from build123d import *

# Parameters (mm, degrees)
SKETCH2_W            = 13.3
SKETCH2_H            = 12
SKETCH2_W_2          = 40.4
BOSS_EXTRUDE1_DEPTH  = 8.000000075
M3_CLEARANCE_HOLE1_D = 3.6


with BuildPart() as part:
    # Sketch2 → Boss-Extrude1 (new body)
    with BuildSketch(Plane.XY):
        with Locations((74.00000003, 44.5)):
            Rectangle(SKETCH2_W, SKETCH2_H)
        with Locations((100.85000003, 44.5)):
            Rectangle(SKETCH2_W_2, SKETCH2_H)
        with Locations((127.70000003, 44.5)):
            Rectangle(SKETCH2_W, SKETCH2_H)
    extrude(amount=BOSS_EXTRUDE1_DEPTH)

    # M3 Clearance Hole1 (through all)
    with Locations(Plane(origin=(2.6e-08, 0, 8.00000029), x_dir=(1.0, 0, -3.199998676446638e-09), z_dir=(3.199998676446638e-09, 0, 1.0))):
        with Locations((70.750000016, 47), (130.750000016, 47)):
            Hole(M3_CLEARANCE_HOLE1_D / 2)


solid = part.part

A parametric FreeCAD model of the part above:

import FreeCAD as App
import Part
import Sketcher
Q = App.Units.Quantity

doc = App.newDocument("Part")
params = doc.addObject("Spreadsheet::Sheet", "Params")
for row, (alias, value) in enumerate([
    ("sketch1_width", "67 mm"),
    ("sketch1_height", "12 mm"),
    ("pad1_length", "8 mm"),
    ("sketch2_diameter", "3.6 mm"),
    ("hole_diameter", "3.6 mm"),
], start=1):
    params.set(f"A{row}", alias)
    params.set(f"B{row}", "=" + value)
    params.setAlias(f"B{row}", alias)

body = doc.addObject("PartDesign::Body", "Body")

sketch1 = body.newObject("Sketcher::SketchObject", "Sketch")
sketch1.AttachmentSupport = (doc.getObject("XY_Plane"), [""])
sketch1.MapMode = "FlatFace"
sketch1.addGeometry(Part.LineSegment(App.Vector(67, 50, 0), App.Vector(67, 38, 0)), False)
sketch1.addGeometry(Part.LineSegment(App.Vector(67, 38, 0), App.Vector(134, 38, 0)), False)
sketch1.addGeometry(Part.LineSegment(App.Vector(134, 38, 0), App.Vector(134, 50, 0)), False)
sketch1.addGeometry(Part.LineSegment(App.Vector(134, 50, 0), App.Vector(67, 50, 0)), False)
sketch1.addConstraint(Sketcher.Constraint("Coincident", 0, 2, 1, 1))
sketch1.addConstraint(Sketcher.Constraint("Coincident", 1, 2, 2, 1))
sketch1.addConstraint(Sketcher.Constraint("Coincident", 2, 2, 3, 1))
sketch1.addConstraint(Sketcher.Constraint("Coincident", 3, 2, 0, 1))
sketch1.addConstraint(Sketcher.Constraint("Vertical", 0))
sketch1.addConstraint(Sketcher.Constraint("Horizontal", 1))
sketch1.addConstraint(Sketcher.Constraint("Vertical", 2))
sketch1.addConstraint(Sketcher.Constraint("Horizontal", 3))
sketch1.addConstraint(Sketcher.Constraint("DistanceX", 1, 1, 1, 2, Q("67 mm")))
sketch1.addConstraint(Sketcher.Constraint("DistanceY", 0, 2, 0, 1, Q("12 mm")))
sketch1.addConstraint(Sketcher.Constraint("DistanceY", -1, 1, 0, 2, Q("38.5 mm")))
sketch1.addConstraint(Sketcher.Constraint("DistanceX", -1, 1, 0, 2, Q("67.35 mm")))
sketch1.setExpression("Constraints[8]", "Params.sketch1_width")
sketch1.setExpression("Constraints[9]", "Params.sketch1_height")
pad1 = body.newObject("PartDesign::Pad", "Pad")
pad1.Profile = sketch1
pad1.setExpression("Length", "Params.pad1_length")

sketch2 = body.newObject("Sketcher::SketchObject", "Sketch001")
sketch2.AttachmentSupport = (doc.getObject("XY_Plane"), [""])
sketch2.MapMode = "FlatFace"
sketch2.AttachmentOffset = App.Placement(App.Vector(0, 0, 8), App.Rotation())
sketch2.addGeometry(Part.Circle(App.Vector(70.8, 47, 0), App.Vector(0, 0, 1), 1.8), False)
sketch2.addGeometry(Part.Circle(App.Vector(130.8, 47, 0), App.Vector(0, 0, 1), 1.8), False)
sketch2.addConstraint(Sketcher.Constraint("Equal", 0, 1))
sketch2.addConstraint(Sketcher.Constraint("Horizontal", 0, 3, 1, 3))
sketch2.addConstraint(Sketcher.Constraint("Diameter", 0, Q("3.6 mm")))
sketch2.addConstraint(Sketcher.Constraint("DistanceY", -1, 1, 0, 3, Q("47 mm")))
sketch2.addConstraint(Sketcher.Constraint("DistanceX", 0, 3, 1, 3, Q("60 mm")))
sketch2.addConstraint(Sketcher.Constraint("DistanceX", -1, 1, 0, 3, Q("70.75 mm")))
sketch2.setExpression("Constraints[2]", "Params.sketch2_diameter")
doc.recompute()
hole = body.newObject("PartDesign::Hole", "Hole")
hole.Profile = sketch2
hole.ThreadType = "None"
hole.setExpression("Diameter", "Params.hole_diameter")
hole.DepthType = "ThroughAll"

doc.recompute()
